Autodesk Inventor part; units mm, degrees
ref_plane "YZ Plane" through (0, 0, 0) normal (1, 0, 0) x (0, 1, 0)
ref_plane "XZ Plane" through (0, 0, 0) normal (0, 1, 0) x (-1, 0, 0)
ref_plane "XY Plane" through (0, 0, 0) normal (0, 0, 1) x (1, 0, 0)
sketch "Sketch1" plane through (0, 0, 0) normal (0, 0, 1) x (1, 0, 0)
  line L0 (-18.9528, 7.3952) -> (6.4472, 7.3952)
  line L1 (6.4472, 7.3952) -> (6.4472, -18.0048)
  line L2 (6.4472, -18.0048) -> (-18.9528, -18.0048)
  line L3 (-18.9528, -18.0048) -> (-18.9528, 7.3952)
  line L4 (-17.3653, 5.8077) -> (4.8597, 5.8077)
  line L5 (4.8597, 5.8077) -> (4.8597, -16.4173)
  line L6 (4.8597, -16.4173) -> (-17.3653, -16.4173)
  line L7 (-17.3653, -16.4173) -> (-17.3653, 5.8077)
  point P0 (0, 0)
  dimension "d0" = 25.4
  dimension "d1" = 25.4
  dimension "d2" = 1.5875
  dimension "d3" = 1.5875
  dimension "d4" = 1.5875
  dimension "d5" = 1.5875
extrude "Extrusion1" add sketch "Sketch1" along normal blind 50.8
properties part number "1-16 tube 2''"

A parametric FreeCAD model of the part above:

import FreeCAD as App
import Part
import Sketcher

V = App.Vector
Q = App.Units.Quantity

doc = App.newDocument("Part")
body = doc.addObject("PartDesign::Body", "Body")

# Sketch on XY plane
sketch1 = doc.addObject("Sketcher::SketchObject", "Sketch")
body.addObject(sketch1)
sketch1.AttachmentSupport = (doc.XY_Plane, [""])
sketch1.MapMode = "FlatFace"
sketch1.addGeometry([
    Part.LineSegment(V(6.4472, 7.3952, 0), V(-18.9528, 7.3952, 0)),  # 0
    Part.LineSegment(V(-18.9528, 7.3952, 0), V(-18.9528, -18.0048, 0)),  # 1
    Part.LineSegment(V(-18.9528, -18.0048, 0), V(6.4472, -18.0048, 0)),  # 2
    Part.LineSegment(V(6.4472, -18.0048, 0), V(6.4472, 7.3952, 0)),  # 3
    Part.LineSegment(V(-17.3653, -16.4173, 0), V(-17.3653, 5.8077, 0)),  # 4
    Part.LineSegment(V(-17.3653, 5.8077, 0), V(4.8597, 5.8077, 0)),  # 5
    Part.LineSegment(V(4.8597, 5.8077, 0), V(4.8597, -16.4173, 0)),  # 6
    Part.LineSegment(V(4.8597, -16.4173, 0), V(-17.3653, -16.4173, 0)),  # 7
], False)
sketch1.addConstraint([
    Sketcher.Constraint("Coincident", 0, 2, 1, 1),
    Sketcher.Constraint("Coincident", 1, 2, 2, 1),
    Sketcher.Constraint("Coincident", 2, 2, 3, 1),
    Sketcher.Constraint("Coincident", 3, 2, 0, 1),
    Sketcher.Constraint("Coincident", 4, 2, 5, 1),
    Sketcher.Constraint("Coincident", 5, 2, 6, 1),
    Sketcher.Constraint("Coincident", 6, 2, 7, 1),
    Sketcher.Constraint("Coincident", 7, 2, 4, 1),
    Sketcher.Constraint("Horizontal", 0),
    Sketcher.Constraint("Vertical", 1),
    Sketcher.Constraint("Horizontal", 2),
    Sketcher.Constraint("Vertical", 3),
    Sketcher.Constraint("Vertical", 4),
    Sketcher.Constraint("Horizontal", 5),
    Sketcher.Constraint("Vertical", 6),
    Sketcher.Constraint("Horizontal", 7),
    Sketcher.Constraint("Equal", 2, 1),
    Sketcher.Constraint("Equal", 7, 4),
    Sketcher.Constraint("DistanceX", 0, 2, 0, 1, Q("1 in")),
    Sketcher.Constraint("DistanceX", 0, 2, 4, 2, Q("0.0625 in")),
    Sketcher.Constraint("DistanceY", 4, 2, 0, 2, Q("0.0625 in")),
    Sketcher.Constraint("DistanceX", 5, 2, 3, 2, Q("0.0625 in")),
    Sketcher.Constraint("DistanceX", 0, 2, -1, 1, 18.9528),
    Sketcher.Constraint("DistanceY", -1, 1, 0, 2, 7.3952),
])
pad1 = doc.addObject("PartDesign::Pad", "Pad")
body.addObject(pad1)
pad1.Profile = sketch1
pad1.Length = Q("2 in")

doc.recompute()
